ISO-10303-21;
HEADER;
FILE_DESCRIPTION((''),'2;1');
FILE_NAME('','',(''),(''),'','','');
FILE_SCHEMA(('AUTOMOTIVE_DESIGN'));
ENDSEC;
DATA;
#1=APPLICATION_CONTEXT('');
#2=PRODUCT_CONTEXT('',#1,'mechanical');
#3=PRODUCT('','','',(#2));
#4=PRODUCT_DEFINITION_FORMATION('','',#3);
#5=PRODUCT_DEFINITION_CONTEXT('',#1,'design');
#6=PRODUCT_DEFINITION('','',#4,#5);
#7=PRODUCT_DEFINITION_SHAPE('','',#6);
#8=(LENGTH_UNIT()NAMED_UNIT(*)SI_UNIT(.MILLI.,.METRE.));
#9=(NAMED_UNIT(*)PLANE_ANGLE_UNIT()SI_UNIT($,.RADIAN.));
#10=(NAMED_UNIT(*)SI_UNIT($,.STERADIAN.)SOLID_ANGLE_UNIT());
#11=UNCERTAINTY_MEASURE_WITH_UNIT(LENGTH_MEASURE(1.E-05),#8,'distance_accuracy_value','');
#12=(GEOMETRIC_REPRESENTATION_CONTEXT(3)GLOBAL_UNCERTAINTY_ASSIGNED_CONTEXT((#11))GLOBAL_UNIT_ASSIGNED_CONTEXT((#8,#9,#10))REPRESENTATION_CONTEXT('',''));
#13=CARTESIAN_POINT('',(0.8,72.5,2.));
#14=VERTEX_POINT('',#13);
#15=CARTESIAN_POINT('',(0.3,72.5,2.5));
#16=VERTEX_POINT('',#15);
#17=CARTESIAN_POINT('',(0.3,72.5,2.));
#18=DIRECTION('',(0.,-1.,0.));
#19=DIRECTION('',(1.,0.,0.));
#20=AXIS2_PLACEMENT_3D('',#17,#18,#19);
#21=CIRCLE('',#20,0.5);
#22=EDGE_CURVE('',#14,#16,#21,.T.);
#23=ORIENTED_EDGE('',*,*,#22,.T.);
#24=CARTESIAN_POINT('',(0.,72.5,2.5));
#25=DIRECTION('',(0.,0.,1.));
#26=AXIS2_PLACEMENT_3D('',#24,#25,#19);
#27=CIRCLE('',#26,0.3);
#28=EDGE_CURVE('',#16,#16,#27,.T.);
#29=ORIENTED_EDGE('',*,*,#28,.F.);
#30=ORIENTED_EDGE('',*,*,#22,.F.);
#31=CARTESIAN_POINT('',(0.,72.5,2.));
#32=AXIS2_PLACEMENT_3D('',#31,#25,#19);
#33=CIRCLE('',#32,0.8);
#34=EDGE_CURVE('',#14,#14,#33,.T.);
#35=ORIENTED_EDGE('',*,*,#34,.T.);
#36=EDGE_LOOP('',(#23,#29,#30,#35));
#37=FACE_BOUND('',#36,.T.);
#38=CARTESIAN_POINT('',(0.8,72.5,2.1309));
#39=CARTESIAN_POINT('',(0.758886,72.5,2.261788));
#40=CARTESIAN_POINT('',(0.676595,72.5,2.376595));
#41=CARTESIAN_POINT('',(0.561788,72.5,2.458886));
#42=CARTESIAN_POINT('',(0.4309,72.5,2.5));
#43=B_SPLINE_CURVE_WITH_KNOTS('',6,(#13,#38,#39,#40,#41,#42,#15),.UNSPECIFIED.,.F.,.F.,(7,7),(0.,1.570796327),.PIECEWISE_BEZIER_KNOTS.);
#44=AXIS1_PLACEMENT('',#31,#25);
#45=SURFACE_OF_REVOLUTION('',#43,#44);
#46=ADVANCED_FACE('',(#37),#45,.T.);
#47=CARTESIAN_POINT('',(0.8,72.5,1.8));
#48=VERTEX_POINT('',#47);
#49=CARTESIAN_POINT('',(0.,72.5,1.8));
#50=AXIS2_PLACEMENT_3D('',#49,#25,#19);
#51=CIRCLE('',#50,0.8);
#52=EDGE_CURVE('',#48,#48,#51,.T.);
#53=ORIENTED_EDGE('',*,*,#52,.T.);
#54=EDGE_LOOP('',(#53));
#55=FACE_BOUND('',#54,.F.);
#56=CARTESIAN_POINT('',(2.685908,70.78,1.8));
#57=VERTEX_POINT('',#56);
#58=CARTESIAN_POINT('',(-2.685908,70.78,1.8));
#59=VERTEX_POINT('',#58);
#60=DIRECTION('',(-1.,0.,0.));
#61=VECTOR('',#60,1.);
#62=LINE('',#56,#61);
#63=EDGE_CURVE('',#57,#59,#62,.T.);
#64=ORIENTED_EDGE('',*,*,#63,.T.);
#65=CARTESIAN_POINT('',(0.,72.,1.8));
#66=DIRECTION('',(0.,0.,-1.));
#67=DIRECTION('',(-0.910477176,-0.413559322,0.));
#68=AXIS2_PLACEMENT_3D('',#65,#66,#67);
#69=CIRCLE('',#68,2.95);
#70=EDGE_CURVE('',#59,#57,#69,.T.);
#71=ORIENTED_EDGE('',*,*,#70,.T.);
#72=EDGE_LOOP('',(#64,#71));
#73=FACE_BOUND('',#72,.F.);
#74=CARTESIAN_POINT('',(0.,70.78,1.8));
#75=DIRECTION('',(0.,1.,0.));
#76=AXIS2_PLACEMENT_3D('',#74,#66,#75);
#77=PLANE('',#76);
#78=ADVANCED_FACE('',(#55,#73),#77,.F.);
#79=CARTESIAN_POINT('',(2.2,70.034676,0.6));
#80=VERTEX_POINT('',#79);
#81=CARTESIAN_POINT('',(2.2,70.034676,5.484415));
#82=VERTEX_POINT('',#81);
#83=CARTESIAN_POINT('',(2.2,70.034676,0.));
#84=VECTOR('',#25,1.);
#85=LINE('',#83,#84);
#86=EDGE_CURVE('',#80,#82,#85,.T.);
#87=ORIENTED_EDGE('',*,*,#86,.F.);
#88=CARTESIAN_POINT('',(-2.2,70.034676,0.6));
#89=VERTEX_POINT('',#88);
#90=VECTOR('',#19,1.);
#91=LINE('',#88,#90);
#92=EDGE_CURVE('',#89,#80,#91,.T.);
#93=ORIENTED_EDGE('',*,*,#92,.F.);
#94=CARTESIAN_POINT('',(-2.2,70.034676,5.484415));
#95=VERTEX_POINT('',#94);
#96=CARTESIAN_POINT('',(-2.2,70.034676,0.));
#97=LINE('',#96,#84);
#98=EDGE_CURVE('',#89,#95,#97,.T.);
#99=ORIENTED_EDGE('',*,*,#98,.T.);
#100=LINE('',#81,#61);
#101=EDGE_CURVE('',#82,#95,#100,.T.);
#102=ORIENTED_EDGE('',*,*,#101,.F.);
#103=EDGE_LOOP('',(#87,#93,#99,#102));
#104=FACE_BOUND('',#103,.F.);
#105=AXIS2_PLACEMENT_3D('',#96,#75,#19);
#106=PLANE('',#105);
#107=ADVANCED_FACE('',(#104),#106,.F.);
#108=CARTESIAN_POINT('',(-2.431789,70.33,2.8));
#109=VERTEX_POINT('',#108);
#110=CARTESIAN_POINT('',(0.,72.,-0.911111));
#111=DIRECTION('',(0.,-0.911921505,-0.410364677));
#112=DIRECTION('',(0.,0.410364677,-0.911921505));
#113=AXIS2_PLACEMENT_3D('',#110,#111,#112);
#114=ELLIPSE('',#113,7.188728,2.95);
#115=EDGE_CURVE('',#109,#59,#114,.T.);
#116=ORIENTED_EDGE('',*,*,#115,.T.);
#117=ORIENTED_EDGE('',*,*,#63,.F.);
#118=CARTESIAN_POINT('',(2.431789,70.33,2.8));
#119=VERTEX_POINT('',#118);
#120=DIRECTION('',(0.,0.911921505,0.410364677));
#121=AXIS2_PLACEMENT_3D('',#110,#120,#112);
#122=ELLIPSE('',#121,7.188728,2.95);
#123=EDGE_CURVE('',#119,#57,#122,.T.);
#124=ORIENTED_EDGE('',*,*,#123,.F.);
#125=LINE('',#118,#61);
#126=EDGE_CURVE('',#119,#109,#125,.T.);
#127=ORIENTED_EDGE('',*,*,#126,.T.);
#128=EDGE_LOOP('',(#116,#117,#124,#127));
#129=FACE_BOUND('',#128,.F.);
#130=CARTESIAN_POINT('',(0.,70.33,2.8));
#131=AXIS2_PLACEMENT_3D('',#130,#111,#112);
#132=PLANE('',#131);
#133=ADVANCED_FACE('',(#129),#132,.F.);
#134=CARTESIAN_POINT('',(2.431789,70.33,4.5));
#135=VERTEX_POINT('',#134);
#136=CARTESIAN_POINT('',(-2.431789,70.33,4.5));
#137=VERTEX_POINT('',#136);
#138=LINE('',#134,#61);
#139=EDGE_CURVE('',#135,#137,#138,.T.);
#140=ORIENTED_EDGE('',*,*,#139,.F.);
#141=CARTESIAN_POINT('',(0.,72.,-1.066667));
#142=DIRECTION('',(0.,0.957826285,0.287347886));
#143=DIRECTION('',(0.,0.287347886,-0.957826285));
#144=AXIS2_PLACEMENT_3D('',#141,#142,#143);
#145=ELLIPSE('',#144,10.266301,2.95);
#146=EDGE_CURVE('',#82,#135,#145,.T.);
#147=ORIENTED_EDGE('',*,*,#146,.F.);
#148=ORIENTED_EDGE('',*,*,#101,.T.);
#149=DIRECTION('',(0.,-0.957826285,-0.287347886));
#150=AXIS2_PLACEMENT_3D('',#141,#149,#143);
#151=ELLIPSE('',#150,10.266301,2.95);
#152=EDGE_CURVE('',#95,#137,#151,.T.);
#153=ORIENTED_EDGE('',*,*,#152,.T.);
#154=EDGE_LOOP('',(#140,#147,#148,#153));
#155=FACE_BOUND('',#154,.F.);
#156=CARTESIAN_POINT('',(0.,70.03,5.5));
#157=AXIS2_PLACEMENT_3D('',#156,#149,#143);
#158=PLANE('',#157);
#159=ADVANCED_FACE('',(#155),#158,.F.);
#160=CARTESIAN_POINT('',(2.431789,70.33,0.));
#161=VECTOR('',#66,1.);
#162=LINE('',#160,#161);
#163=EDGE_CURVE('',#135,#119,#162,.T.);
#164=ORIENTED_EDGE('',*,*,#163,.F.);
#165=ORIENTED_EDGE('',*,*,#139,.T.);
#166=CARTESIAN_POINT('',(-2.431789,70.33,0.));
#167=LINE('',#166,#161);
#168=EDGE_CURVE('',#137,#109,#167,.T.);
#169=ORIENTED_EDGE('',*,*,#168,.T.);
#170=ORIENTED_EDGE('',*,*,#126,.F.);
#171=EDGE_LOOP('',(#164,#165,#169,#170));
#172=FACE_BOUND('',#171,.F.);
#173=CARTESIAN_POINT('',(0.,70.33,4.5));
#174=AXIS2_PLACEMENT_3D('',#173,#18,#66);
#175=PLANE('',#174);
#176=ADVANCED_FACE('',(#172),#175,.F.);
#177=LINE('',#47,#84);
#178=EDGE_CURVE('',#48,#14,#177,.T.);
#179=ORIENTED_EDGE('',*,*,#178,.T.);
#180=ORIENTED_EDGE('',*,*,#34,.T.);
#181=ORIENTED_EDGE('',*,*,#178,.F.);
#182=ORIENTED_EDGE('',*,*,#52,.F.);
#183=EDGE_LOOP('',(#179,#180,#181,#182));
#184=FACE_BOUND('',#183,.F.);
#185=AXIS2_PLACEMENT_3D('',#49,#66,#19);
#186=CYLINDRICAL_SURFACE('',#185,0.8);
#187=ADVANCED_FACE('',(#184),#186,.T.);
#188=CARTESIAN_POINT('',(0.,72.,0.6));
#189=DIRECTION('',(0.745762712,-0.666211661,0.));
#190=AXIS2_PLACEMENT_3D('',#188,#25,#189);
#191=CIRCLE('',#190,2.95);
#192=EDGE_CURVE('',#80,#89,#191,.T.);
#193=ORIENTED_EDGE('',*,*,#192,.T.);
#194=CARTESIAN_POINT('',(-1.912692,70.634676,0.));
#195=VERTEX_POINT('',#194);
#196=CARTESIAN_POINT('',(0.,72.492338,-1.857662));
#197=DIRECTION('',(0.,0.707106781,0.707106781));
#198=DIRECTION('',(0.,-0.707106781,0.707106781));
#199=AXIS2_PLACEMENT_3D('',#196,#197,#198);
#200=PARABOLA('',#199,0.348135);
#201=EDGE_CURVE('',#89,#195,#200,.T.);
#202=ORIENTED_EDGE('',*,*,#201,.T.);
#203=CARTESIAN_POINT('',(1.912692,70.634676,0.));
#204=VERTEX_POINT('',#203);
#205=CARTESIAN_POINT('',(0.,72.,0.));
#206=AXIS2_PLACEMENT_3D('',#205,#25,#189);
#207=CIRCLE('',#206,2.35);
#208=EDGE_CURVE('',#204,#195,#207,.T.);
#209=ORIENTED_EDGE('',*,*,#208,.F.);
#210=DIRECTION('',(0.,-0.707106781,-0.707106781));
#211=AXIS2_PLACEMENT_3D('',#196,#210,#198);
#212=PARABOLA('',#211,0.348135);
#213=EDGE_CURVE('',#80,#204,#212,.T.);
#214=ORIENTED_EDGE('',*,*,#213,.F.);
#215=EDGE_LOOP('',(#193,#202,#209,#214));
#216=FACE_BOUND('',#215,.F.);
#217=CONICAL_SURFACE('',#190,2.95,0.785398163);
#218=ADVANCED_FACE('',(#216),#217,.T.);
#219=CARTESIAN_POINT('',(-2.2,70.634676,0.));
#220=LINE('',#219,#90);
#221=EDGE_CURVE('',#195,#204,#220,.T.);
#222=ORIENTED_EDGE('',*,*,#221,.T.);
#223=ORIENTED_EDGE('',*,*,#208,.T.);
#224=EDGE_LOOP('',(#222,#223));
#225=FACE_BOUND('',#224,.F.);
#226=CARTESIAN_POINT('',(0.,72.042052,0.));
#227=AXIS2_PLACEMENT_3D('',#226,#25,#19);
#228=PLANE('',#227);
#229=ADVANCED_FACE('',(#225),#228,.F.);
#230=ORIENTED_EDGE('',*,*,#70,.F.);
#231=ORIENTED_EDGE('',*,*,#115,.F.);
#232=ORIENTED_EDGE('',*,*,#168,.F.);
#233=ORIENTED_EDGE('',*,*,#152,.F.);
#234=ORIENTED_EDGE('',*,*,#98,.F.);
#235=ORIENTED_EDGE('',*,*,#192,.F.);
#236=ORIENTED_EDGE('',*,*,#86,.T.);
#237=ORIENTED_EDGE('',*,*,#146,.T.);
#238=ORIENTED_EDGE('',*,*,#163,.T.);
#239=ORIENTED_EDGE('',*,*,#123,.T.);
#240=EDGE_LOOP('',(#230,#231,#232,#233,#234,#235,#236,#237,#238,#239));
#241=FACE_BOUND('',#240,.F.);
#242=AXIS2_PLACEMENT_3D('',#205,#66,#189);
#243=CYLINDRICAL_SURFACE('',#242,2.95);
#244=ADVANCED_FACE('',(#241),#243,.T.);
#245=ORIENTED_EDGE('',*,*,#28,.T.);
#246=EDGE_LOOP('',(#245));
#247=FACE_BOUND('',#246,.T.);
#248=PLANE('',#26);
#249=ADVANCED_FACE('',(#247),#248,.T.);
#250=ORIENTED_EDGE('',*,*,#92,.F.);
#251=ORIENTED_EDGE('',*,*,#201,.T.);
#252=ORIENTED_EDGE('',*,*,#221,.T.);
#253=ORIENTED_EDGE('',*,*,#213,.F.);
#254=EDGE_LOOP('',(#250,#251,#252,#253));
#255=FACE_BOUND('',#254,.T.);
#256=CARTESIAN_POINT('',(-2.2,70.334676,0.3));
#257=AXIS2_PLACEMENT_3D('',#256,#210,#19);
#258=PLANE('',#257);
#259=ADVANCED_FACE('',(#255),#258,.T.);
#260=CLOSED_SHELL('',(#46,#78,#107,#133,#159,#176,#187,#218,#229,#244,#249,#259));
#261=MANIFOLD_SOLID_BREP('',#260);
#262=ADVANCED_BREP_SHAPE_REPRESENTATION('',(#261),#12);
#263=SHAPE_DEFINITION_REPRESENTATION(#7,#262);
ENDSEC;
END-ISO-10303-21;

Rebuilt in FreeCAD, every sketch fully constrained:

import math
import FreeCAD as App
import Part
import Sketcher
from FreeCAD import Vector
Q = App.Units.Quantity


def edges_at(feature, points):
    """Names of the edges that pass closest to the given points."""
    edges = feature.Shape.Edges
    near = lambda p: min(range(len(edges)), key=lambda i: edges[i].distToShape(Part.Vertex(*p))[0])
    return sorted({f"Edge{near(p) + 1}" for p in points})


def add_polygon(sketch, points):
    """Adds a closed chain of lines whose ends are joined by coincident constraints."""
    first, n = sketch.GeometryCount, len(points)
    for a, b in zip(points, points[1:] + points[:1]):
        sketch.addGeometry(Part.LineSegment(App.Vector(*a, 0), App.Vector(*b, 0)), False)
    for i in range(n):
        sketch.addConstraint(Sketcher.Constraint("Coincident", first + i, 2, first + (i + 1) % n, 1))

doc = App.newDocument("Part")
params = doc.addObject("Spreadsheet::Sheet", "Params")
for row, (alias, value) in enumerate([
    ("sketch1_radius", "2.95 mm"),
    ("sketch1_width", "4.4 mm"),
    ("pad1_length", "5.5 mm"),
    ("sketch2_height", "1.7 mm"),
    ("sketch2_height2", "3.7 mm"),
    ("sketch2_width", "5.22 mm"),
    ("sketch2_width2", "5.97 mm"),
    ("sketch3_diameter", "1.6 mm"),
    ("pad2_length", "0.7 mm"),
    ("fillet_radius", "0.5 mm"),
    ("chamfer_size", "0.6 mm"),
], start=1):
    params.set(f"A{row}", alias)
    params.set(f"B{row}", "=" + value)
    params.setAlias(f"B{row}", alias)

body = doc.addObject("PartDesign::Body", "Body")

# Sketch on XY plane
sketch1 = body.newObject("Sketcher::SketchObject", "Sketch")
sketch1.AttachmentSupport = (doc.getObject("XY_Plane"), [""])
sketch1.MapMode = "FlatFace"
sketch1.addGeometry([
    Part.ArcOfCircle(Part.Circle(Vector(0, 0, 0), Vector(0, 0, 1), 3), math.radians(-42), math.radians(222)),
    Part.LineSegment(Vector(-2.2, -2, 0), Vector(2.2, -2, 0)),
], False)
sketch1.addConstraint([
    Sketcher.Constraint("Coincident", 0, 1, 1, 2),
    Sketcher.Constraint("Coincident", 1, 1, 0, 2),
    Sketcher.Constraint("Horizontal", 1),
    Sketcher.Constraint("Coincident", 0, 3, -1, 1),
    Sketcher.Constraint("Radius", 0, Q("2.95 mm")),
    Sketcher.Constraint("DistanceX", 1, 1, 1, 2, Q("4.4 mm")),
])
sketch1.setExpression("Constraints[4]", "Params.sketch1_radius")
sketch1.setExpression("Constraints[5]", "Params.sketch1_width")
pad1 = body.newObject("PartDesign::Pad", "Pad")
pad1.Profile = sketch1
pad1.setExpression("Length", "Params.pad1_length")

# Sketch on YZ plane
sketch2 = body.newObject("Sketcher::SketchObject", "Sketch001")
sketch2.AttachmentSupport = (doc.getObject("YZ_Plane"), [""])
sketch2.MapMode = "FlatFace"
add_polygon(sketch2, [(-2, 5.5), (-1.7, 4.5), (-1.7, 2.8), (-1.2, 1.8), (4, 1.8), (4, 5.5)])  # lines 0-5
sketch2.addConstraint([
    Sketcher.Constraint("Vertical", 1),
    Sketcher.Constraint("Horizontal", 3),
    Sketcher.Constraint("Vertical", 4),
    Sketcher.Constraint("Horizontal", 5),
    Sketcher.Constraint("DistanceY", 1, 2, 1, 1, Q("1.7 mm")),
    Sketcher.Constraint("DistanceY", 4, 1, 4, 2, Q("3.7 mm")),
    Sketcher.Constraint("DistanceX", -1, 1, 3, 2, Q("4 mm")),
    Sketcher.Constraint("DistanceY", 2, 2, 1, 2, Q("1 mm")),
    Sketcher.Constraint("DistanceX", 3, 1, 3, 2, Q("5.22 mm")),
    Sketcher.Constraint("DistanceX", 5, 2, 5, 1, Q("5.97 mm")),
    Sketcher.Constraint("DistanceY", -1, 1, 0, 2, Q("4.5 mm")),
    Sketcher.Constraint("DistanceX", 5, 2, 0, 2, Q("0.3 mm")),
])
sketch2.setExpression("Constraints[10]", "Params.sketch2_height")
sketch2.setExpression("Constraints[11]", "Params.sketch2_height2")
sketch2.setExpression("Constraints[14]", "Params.sketch2_width")
sketch2.setExpression("Constraints[15]", "Params.sketch2_width2")
pocket1 = body.newObject("PartDesign::Pocket", "Pocket")
pocket1.Profile = sketch2
pocket1.Type = "ThroughAll"
pocket1.Midplane = True

# Sketch on XY plane
sketch3 = body.newObject("Sketcher::SketchObject", "Sketch002")
sketch3.AttachmentSupport = (doc.getObject("XY_Plane"), [""])
sketch3.MapMode = "FlatFace"
sketch3.AttachmentOffset = App.Placement(Vector(0, 0, 1.8), App.Rotation())
sketch3.addGeometry(Part.Circle(Vector(0, 0.5, 0), Vector(0, 0, 1), 0.8), False)
sketch3.addConstraint([
    Sketcher.Constraint("PointOnObject", 0, 3, -2),
    Sketcher.Constraint("Diameter", 0, Q("1.6 mm")),
    Sketcher.Constraint("DistanceY", -1, 1, 0, 3, Q("0.5 mm")),
])
sketch3.setExpression("Constraints[1]", "Params.sketch3_diameter")
pad2 = body.newObject("PartDesign::Pad", "Pad001")
pad2.Profile = sketch3
pad2.setExpression("Length", "Params.pad2_length")
doc.recompute()

fillet = body.newObject("PartDesign::Fillet", "Fillet")
fillet.Base = (pad2, edges_at(pad2, [(-0.8, 0.5, 2.5)]))
fillet.setExpression("Radius", "Params.fillet_radius")
doc.recompute()

chamfer = body.newObject("PartDesign::Chamfer", "Chamfer")
chamfer.Base = (fillet, edges_at(fillet, [(0, 2.95, 0), (0, -1.965, 0)]))
chamfer.setExpression("Size", "Params.chamfer_size")
body2 = doc.addObject("PartDesign::Body", "Body001")
doc.recompute()

body.Placement = App.Placement(Vector(0, 72, 0), App.Rotation(Vector(0, 0, 1), 0))
boolean = body2.newObject("PartDesign::Boolean", "Boolean")
boolean.Type = "Fuse"
boolean.addObjects([body])

doc.recompute()
